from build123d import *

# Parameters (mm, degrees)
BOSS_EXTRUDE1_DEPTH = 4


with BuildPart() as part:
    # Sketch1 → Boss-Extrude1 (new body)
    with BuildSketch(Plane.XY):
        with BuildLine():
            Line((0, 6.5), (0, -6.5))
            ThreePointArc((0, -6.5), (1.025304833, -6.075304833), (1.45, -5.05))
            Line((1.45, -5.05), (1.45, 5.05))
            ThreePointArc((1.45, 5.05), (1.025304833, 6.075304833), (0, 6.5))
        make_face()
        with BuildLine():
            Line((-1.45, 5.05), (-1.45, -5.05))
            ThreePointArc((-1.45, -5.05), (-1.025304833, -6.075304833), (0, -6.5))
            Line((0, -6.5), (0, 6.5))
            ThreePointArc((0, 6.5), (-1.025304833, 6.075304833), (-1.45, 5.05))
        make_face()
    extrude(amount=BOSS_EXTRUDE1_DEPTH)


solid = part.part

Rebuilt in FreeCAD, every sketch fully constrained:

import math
import FreeCAD as App
import Part
import Sketcher
Q = App.Units.Quantity

doc = App.newDocument("Part")
body = doc.addObject("PartDesign::Body", "Body")

# Sketch on XY plane
sketch1 = body.newObject("Sketcher::SketchObject", "Sketch")
sketch1.AttachmentSupport = (doc.getObject("XY_Plane"), [""])
sketch1.MapMode = "FlatFace"
sketch1.addGeometry([
    Part.ArcOfCircle(Part.Circle(App.Vector(0, -5.05, 0), App.Vector(0, 0, 1), 1.45), math.radians(-90), math.radians(0)),  # 0
    Part.LineSegment(App.Vector(1.45, -5.05, 0), App.Vector(1.45, 5.05, 0)),  # 1
    Part.ArcOfCircle(Part.Circle(App.Vector(0, 5.05, 0), App.Vector(0, 0, 1), 1.45), math.radians(0), math.radians(90)),  # 2
    Part.ArcOfCircle(Part.Circle(App.Vector(0, 5.05, 0), App.Vector(0, 0, 1), 1.45), math.radians(90), math.radians(180)),  # 3
    Part.LineSegment(App.Vector(-1.45, 5.05, 0), App.Vector(-1.45, -5.05, 0)),  # 4
    Part.ArcOfCircle(Part.Circle(App.Vector(0, -5.05, 0), App.Vector(0, 0, 1), 1.45), math.radians(180), math.radians(270)),  # 5
], False)
sketch1.addConstraint([
    Sketcher.Constraint("Tangent", 0, 2, 1, 1),
    Sketcher.Constraint("Tangent", 1, 2, 2, 1),
    Sketcher.Constraint("Tangent", 2, 2, 3, 1),
    Sketcher.Constraint("Tangent", 3, 2, 4, 1),
    Sketcher.Constraint("Tangent", 4, 2, 5, 1),
    Sketcher.Constraint("Tangent", 5, 2, 0, 1),
    Sketcher.Constraint("Vertical", 1),
    Sketcher.Constraint("Vertical", 4),
    Sketcher.Constraint("Equal", 0, 2),
    Sketcher.Constraint("Equal", 2, 3),
    Sketcher.Constraint("Symmetric", 0, 3, 2, 3, -1, 1),
    Sketcher.Constraint("PointOnObject", 2, 2, -2),
    Sketcher.Constraint("PointOnObject", 5, 2, -2),
    Sketcher.Constraint("Radius", 0, Q("1.45 mm")),
    Sketcher.Constraint("DistanceY", 1, 1, 1, 2, Q("10.1 mm")),
])
pad1 = body.newObject("PartDesign::Pad", "Pad")
pad1.Profile = sketch1
pad1.Length = 4

doc.recompute()
